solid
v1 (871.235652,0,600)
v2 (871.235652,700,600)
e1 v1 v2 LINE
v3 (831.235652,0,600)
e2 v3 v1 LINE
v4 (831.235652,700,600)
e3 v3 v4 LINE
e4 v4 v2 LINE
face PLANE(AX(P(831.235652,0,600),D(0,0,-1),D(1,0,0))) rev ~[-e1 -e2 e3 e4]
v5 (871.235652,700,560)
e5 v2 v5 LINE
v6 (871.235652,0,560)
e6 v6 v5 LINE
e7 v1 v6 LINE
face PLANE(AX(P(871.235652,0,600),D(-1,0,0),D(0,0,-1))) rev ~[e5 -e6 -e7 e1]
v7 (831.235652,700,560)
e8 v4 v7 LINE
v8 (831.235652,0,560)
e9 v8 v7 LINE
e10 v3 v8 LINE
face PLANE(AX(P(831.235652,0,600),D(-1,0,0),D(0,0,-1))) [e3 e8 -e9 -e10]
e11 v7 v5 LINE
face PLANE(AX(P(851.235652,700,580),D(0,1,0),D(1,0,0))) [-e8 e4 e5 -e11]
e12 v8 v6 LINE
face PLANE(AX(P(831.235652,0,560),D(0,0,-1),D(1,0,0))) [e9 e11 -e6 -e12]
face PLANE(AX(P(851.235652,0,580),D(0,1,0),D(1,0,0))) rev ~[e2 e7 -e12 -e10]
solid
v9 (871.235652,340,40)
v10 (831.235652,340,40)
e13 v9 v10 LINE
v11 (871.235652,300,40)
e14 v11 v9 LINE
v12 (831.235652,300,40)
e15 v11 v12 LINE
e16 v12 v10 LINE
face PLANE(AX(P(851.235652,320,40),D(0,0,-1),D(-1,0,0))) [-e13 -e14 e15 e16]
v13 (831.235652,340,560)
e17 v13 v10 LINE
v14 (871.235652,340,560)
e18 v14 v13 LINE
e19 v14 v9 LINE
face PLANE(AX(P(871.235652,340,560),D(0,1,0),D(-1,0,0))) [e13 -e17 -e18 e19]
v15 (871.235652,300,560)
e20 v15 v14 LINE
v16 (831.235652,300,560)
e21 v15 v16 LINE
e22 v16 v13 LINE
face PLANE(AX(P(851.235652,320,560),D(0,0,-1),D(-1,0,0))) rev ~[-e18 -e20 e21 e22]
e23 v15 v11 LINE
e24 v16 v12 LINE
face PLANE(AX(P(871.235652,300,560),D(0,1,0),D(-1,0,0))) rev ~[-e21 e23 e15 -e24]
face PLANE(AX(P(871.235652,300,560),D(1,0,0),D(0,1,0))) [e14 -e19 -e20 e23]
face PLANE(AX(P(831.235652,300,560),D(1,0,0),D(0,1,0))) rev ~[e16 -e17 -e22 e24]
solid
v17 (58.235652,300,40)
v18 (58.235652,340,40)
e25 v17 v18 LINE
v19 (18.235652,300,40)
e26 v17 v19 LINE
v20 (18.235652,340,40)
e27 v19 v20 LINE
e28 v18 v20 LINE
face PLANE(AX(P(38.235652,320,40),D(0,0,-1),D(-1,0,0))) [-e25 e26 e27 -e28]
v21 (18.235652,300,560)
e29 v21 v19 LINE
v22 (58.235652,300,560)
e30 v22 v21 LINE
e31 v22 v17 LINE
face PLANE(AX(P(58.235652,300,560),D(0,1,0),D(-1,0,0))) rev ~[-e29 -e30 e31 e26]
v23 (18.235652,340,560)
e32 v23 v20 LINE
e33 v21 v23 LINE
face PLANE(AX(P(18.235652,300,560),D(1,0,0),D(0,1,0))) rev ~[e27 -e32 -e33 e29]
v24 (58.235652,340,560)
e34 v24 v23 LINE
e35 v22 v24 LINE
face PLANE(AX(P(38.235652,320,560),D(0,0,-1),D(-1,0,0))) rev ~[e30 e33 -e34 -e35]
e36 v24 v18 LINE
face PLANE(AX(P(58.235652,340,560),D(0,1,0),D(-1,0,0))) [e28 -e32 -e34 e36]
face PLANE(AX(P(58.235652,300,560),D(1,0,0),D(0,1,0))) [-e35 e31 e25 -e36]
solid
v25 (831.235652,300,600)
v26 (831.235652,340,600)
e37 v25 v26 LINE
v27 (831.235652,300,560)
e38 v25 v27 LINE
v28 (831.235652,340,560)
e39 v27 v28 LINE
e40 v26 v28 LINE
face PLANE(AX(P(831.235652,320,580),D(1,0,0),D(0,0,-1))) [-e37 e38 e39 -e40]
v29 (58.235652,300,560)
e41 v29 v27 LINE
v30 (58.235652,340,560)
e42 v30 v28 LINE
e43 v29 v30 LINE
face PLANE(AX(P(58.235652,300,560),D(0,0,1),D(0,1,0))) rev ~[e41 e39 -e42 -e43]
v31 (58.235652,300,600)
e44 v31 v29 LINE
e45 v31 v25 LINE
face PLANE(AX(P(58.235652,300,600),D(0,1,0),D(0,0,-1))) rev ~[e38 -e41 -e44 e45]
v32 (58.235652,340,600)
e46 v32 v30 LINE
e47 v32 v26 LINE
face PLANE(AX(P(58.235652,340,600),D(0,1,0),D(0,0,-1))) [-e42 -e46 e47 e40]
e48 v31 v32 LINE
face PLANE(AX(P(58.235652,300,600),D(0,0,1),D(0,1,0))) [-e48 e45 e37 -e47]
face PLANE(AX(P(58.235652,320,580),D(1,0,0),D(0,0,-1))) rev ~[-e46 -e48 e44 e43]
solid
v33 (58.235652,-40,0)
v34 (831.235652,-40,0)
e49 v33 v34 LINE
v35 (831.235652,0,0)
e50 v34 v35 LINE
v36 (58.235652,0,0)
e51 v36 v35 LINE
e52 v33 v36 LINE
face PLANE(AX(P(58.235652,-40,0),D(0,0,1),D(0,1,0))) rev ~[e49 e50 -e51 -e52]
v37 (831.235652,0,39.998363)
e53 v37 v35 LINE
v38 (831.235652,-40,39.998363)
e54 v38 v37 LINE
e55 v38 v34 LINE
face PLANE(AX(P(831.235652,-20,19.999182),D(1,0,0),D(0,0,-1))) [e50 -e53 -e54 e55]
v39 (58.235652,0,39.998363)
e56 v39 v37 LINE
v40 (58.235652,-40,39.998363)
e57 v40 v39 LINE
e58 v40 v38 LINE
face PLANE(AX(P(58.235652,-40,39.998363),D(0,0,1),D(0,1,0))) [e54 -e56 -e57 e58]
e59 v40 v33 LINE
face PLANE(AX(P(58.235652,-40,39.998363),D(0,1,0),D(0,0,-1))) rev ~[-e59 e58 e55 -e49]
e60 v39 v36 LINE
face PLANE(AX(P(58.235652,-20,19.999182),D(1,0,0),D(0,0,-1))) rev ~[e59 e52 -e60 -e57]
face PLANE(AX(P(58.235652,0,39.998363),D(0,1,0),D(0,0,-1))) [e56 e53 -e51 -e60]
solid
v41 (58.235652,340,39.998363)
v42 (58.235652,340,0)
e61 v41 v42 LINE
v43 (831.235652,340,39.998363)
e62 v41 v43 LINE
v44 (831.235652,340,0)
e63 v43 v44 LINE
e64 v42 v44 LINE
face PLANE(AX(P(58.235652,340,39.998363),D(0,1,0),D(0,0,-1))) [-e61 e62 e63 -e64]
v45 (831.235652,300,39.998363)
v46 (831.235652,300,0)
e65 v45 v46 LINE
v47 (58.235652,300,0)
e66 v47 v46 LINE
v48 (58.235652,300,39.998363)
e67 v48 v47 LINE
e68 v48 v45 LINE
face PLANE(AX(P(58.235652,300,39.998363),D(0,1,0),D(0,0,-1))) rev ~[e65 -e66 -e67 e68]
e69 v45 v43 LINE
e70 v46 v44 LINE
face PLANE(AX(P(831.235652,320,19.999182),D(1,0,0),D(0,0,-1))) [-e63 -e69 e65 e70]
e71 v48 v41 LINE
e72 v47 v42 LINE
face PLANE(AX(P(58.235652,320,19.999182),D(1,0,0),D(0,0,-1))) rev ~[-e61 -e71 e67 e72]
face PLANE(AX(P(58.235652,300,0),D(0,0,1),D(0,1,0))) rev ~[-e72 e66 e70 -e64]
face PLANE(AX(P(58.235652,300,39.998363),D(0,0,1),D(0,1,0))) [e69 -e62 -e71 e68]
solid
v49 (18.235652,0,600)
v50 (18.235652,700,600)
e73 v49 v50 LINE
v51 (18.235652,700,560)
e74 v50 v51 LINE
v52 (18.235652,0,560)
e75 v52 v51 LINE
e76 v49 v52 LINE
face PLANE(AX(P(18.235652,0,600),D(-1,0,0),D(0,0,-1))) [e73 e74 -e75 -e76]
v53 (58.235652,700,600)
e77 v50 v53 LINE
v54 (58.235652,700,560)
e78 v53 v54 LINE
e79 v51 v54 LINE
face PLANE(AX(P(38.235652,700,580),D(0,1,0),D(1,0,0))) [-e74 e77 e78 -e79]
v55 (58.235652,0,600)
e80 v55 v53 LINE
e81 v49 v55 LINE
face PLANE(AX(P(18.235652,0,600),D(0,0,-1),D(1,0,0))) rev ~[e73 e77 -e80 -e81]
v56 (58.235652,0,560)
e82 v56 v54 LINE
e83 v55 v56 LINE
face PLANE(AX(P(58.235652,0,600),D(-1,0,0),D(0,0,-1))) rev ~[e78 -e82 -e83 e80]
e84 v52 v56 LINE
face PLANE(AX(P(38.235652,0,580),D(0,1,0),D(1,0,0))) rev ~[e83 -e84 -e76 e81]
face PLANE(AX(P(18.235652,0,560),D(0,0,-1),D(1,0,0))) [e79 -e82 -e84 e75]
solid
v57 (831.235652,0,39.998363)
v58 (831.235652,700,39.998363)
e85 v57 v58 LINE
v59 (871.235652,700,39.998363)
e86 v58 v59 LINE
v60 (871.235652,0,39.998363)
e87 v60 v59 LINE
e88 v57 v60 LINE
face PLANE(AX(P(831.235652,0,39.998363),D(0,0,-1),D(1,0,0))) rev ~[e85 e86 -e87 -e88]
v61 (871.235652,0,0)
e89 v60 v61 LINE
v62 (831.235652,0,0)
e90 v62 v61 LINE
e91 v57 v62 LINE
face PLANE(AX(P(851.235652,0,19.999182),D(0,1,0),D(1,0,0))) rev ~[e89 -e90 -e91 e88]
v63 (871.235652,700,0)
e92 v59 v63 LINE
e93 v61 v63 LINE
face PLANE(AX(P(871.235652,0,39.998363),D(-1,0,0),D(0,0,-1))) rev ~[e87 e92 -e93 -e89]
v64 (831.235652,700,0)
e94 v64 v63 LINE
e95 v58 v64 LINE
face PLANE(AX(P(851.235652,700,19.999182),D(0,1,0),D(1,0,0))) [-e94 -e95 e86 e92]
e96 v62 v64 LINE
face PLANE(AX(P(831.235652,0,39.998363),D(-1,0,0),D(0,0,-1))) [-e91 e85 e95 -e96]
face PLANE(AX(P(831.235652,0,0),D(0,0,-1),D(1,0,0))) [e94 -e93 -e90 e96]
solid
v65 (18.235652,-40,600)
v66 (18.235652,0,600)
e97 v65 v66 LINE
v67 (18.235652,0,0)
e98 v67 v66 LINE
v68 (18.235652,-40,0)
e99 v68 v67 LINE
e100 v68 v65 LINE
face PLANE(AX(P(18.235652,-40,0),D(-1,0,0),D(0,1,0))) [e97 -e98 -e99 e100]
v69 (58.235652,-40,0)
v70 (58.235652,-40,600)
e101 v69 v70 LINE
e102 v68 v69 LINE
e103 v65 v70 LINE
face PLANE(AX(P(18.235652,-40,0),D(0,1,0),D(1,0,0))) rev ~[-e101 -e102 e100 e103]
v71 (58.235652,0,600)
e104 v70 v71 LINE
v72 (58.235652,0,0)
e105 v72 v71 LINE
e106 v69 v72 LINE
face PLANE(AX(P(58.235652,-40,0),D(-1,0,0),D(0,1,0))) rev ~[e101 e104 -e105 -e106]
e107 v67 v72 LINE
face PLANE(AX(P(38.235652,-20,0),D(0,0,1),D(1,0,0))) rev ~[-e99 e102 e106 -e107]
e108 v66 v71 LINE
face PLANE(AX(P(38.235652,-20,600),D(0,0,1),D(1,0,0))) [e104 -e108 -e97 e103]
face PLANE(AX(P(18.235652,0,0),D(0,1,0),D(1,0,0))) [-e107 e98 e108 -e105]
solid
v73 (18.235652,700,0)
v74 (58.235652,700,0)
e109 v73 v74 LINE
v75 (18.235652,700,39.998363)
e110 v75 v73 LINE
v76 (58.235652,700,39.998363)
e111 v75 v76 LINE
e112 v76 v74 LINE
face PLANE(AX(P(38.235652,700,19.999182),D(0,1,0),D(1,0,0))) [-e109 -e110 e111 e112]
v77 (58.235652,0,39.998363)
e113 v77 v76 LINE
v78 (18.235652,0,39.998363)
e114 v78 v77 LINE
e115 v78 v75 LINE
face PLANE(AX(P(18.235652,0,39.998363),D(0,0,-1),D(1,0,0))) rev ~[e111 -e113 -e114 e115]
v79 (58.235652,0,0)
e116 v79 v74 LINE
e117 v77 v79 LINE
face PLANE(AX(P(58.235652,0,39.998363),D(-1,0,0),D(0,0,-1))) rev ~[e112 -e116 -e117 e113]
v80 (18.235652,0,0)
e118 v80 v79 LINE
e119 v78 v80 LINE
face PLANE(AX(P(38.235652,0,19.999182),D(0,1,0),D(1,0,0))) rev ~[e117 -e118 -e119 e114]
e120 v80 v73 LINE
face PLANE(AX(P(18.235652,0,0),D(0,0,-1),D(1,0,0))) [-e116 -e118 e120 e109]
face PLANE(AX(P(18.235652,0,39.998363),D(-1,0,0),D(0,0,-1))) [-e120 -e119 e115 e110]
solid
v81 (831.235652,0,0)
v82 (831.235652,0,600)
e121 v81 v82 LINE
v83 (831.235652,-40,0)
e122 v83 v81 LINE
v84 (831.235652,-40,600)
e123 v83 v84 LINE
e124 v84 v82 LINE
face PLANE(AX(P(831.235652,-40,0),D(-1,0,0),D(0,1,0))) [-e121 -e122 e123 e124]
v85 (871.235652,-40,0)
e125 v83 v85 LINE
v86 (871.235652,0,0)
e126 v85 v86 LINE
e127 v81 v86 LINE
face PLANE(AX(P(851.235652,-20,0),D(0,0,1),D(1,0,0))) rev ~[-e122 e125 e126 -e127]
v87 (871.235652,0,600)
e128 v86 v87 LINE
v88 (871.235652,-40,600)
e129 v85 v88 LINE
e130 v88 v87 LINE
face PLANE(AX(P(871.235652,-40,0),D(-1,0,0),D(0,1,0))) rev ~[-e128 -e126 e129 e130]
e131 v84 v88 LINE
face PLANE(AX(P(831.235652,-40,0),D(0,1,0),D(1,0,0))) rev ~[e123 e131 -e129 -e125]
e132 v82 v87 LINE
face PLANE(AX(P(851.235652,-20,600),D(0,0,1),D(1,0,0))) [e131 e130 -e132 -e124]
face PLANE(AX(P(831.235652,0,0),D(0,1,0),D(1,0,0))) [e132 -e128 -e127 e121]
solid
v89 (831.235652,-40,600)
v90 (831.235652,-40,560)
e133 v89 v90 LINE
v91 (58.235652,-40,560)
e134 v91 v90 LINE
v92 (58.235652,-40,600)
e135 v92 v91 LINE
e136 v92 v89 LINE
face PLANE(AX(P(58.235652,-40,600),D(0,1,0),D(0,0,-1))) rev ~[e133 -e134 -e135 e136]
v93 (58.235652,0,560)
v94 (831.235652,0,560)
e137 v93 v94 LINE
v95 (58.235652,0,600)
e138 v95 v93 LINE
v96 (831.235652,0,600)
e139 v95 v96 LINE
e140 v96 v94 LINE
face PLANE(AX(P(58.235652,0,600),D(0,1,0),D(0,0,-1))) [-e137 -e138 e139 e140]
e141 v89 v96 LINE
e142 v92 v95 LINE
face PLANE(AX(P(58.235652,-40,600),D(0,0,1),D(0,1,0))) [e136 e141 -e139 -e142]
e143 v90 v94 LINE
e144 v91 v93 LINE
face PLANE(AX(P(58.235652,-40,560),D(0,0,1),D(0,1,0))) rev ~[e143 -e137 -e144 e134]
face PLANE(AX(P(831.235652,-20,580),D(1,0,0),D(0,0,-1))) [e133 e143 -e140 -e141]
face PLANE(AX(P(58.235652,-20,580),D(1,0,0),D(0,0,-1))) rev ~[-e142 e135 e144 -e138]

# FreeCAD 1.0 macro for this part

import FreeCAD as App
import Part
import Sketcher
Q = App.Units.Quantity


def add_polygon(sketch, points):
    """Adds a closed chain of lines whose ends are joined by coincident constraints."""
    first, n = sketch.GeometryCount, len(points)
    for a, b in zip(points, points[1:] + points[:1]):
        sketch.addGeometry(Part.LineSegment(App.Vector(*a, 0), App.Vector(*b, 0)), False)
    for i in range(n):
        sketch.addConstraint(Sketcher.Constraint("Coincident", first + i, 2, first + (i + 1) % n, 1))

doc = App.newDocument("Part")
body = doc.addObject("PartDesign::Body", "Body")

# Sketch on XY plane
sketch1 = body.newObject("Sketcher::SketchObject", "Sketch")
sketch1.AttachmentSupport = (doc.getObject("XY_Plane"), [""])
sketch1.MapMode = "FlatFace"
add_polygon(sketch1, [(18, 0), (18, -40), (58, -40), (58, 0)])  # lines 0-3
sketch1.addConstraint([
    Sketcher.Constraint("Vertical", 0),
    Sketcher.Constraint("Horizontal", 1),
    Sketcher.Constraint("Vertical", 2),
    Sketcher.Constraint("Horizontal", 3),
    Sketcher.Constraint("PointOnObject", 2, 2, -1),
    Sketcher.Constraint("Equal", 3, 0),
    Sketcher.Constraint("DistanceX", 1, 1, 1, 2, Q("40 mm")),
    Sketcher.Constraint("DistanceX", -1, 1, 0, 2, Q("18.235652 mm")),
])
pad1 = body.newObject("PartDesign::Pad", "Pad")
pad1.Profile = sketch1
pad1.Length = 600
body2 = doc.addObject("PartDesign::Body", "Body001")

# Sketch on XY plane
sketch2 = body2.newObject("Sketcher::SketchObject", "Sketch001")
sketch2.AttachmentSupport = (doc.getObject("XY_Plane001"), [""])
sketch2.MapMode = "FlatFace"
add_polygon(sketch2, [(831, 0), (831, -40), (871, -40), (871, 0)])  # lines 0-3
sketch2.addConstraint([
    Sketcher.Constraint("Vertical", 0),
    Sketcher.Constraint("Horizontal", 1),
    Sketcher.Constraint("Vertical", 2),
    Sketcher.Constraint("Horizontal", 3),
    Sketcher.Constraint("PointOnObject", 2, 2, -1),
    Sketcher.Constraint("Equal", 3, 0),
    Sketcher.Constraint("DistanceX", 1, 1, 1, 2, Q("40 mm")),
    Sketcher.Constraint("DistanceX", -1, 1, 0, 2, Q("831.235652 mm")),
])
pad2 = body2.newObject("PartDesign::Pad", "Pad001")
pad2.Profile = sketch2
pad2.Length = 600
body3 = doc.addObject("PartDesign::Body", "Body002")

# Sketch on YZ plane
sketch3 = body3.newObject("Sketcher::SketchObject", "Sketch002")
sketch3.AttachmentSupport = (doc.getObject("YZ_Plane002"), [""])
sketch3.MapMode = "FlatFace"
sketch3.AttachmentOffset = App.Placement(App.Vector(0, 0, 58.235652), App.Rotation())
add_polygon(sketch3, [(0, 600), (-40, 600), (-40, 560), (0, 560)])  # lines 0-3
sketch3.addConstraint([
    Sketcher.Constraint("Horizontal", 0),
    Sketcher.Constraint("Vertical", 1),
    Sketcher.Constraint("Horizontal", 2),
    Sketcher.Constraint("Vertical", 3),
    Sketcher.Constraint("PointOnObject", 2, 2, -2),
    Sketcher.Constraint("Equal", 2, 1),
    Sketcher.Constraint("DistanceX", 0, 2, 0, 1, Q("40 mm")),
    Sketcher.Constraint("DistanceY", -1, 1, 0, 2, Q("600 mm")),
])
pad3 = body3.newObject("PartDesign::Pad", "Pad002")
pad3.Profile = sketch3
pad3.Length = 773
body4 = doc.addObject("PartDesign::Body", "Body003")

# Sketch on YZ plane
sketch4 = body4.newObject("Sketcher::SketchObject", "Sketch003")
sketch4.AttachmentSupport = (doc.getObject("YZ_Plane003"), [""])
sketch4.MapMode = "FlatFace"
sketch4.AttachmentOffset = App.Placement(App.Vector(0, 0, 58.235652), App.Rotation())
add_polygon(sketch4, [(0, 40), (-40, 40), (-40, 0), (0, 0)])  # lines 0-3
sketch4.addConstraint([
    Sketcher.Constraint("Horizontal", 0),
    Sketcher.Constraint("Vertical", 1),
    Sketcher.Constraint("Horizontal", 2),
    Sketcher.Constraint("Vertical", 3),
    Sketcher.Constraint("Coincident", 2, 2, -1, 1),
    Sketcher.Constraint("DistanceX", 0, 2, 0, 1, Q("40 mm")),
    Sketcher.Constraint("DistanceY", 1, 2, 1, 1, Q("39.998363 mm")),
])
pad4 = body4.newObject("PartDesign::Pad", "Pad003")
pad4.Profile = sketch4
pad4.Length = 773
body5 = doc.addObject("PartDesign::Body", "Body004")

# Sketch on XZ plane
sketch5 = body5.newObject("Sketcher::SketchObject", "Sketch004")
sketch5.AttachmentSupport = (doc.getObject("XZ_Plane004"), [""])
sketch5.MapMode = "FlatFace"
add_polygon(sketch5, [(18, 0), (18, 40), (58, 40), (58, 0)])  # lines 0-3
sketch5.addConstraint([
    Sketcher.Constraint("Vertical", 0),
    Sketcher.Constraint("Horizontal", 1),
    Sketcher.Constraint("Vertical", 2),
    Sketcher.Constraint("Horizontal", 3),
    Sketcher.Constraint("PointOnObject", 2, 2, -1),
    Sketcher.Constraint("DistanceX", 1, 1, 1, 2, Q("40 mm")),
    Sketcher.Constraint("DistanceY", 0, 1, 0, 2, Q("39.998363 mm")),
    Sketcher.Constraint("DistanceX", -1, 1, 0, 2, Q("18.235652 mm")),
])
pad5 = body5.newObject("PartDesign::Pad", "Pad004")
pad5.Profile = sketch5
pad5.Length = 700
pad5.Reversed = True
body6 = doc.addObject("PartDesign::Body", "Body005")

# Sketch on XZ plane
sketch6 = body6.newObject("Sketcher::SketchObject", "Sketch005")
sketch6.AttachmentSupport = (doc.getObject("XZ_Plane005"), [""])
sketch6.MapMode = "FlatFace"
add_polygon(sketch6, [(831, 0), (831, 40), (871, 40), (871, 0)])  # lines 0-3
sketch6.addConstraint([
    Sketcher.Constraint("Vertical", 0),
    Sketcher.Constraint("Horizontal", 1),
    Sketcher.Constraint("Vertical", 2),
    Sketcher.Constraint("Horizontal", 3),
    Sketcher.Constraint("PointOnObject", 2, 2, -1),
    Sketcher.Constraint("DistanceX", 1, 1, 1, 2, Q("40 mm")),
    Sketcher.Constraint("DistanceY", 0, 1, 0, 2, Q("39.998363 mm")),
    Sketcher.Constraint("DistanceX", -1, 1, 0, 2, Q("831.235652 mm")),
])
pad6 = body6.newObject("PartDesign::Pad", "Pad005")
pad6.Profile = sketch6
pad6.Length = 700
pad6.Reversed = True
body7 = doc.addObject("PartDesign::Body", "Body006")

# Sketch on XZ plane
sketch7 = body7.newObject("Sketcher::SketchObject", "Sketch006")
sketch7.AttachmentSupport = (doc.getObject("XZ_Plane006"), [""])
sketch7.MapMode = "FlatFace"
add_polygon(sketch7, [(18, 560), (18, 600), (58, 600), (58, 560)])  # lines 0-3
sketch7.addConstraint([
    Sketcher.Constraint("Vertical", 0),
    Sketcher.Constraint("Horizontal", 1),
    Sketcher.Constraint("Vertical", 2),
    Sketcher.Constraint("Horizontal", 3),
    Sketcher.Constraint("Equal", 3, 0),
    Sketcher.Constraint("DistanceX", 1, 1, 1, 2, Q("40 mm")),
    Sketcher.Constraint("DistanceY", -1, 1, 0, 2, Q("600 mm")),
    Sketcher.Constraint("DistanceX", -1, 1, 0, 2, Q("18.235652 mm")),
])
pad7 = body7.newObject("PartDesign::Pad", "Pad006")
pad7.Profile = sketch7
pad7.Length = 700
pad7.Reversed = True
body8 = doc.addObject("PartDesign::Body", "Body007")

# Sketch on XZ plane
sketch8 = body8.newObject("Sketcher::SketchObject", "Sketch007")
sketch8.AttachmentSupport = (doc.getObject("XZ_Plane007"), [""])
sketch8.MapMode = "FlatFace"
add_polygon(sketch8, [(831, 560), (831, 600), (871, 600), (871, 560)])  # lines 0-3
sketch8.addConstraint([
    Sketcher.Constraint("Vertical", 0),
    Sketcher.Constraint("Horizontal", 1),
    Sketcher.Constraint("Vertical", 2),
    Sketcher.Constraint("Horizontal", 3),
    Sketcher.Constraint("Equal", 3, 0),
    Sketcher.Constraint("DistanceX", 1, 1, 1, 2, Q("40 mm")),
    Sketcher.Constraint("DistanceY", -1, 1, 0, 2, Q("600 mm")),
    Sketcher.Constraint("DistanceX", -1, 1, 0, 2, Q("831.235652 mm")),
])
pad8 = body8.newObject("PartDesign::Pad", "Pad007")
pad8.Profile = sketch8
pad8.Length = 700
pad8.Reversed = True
body9 = doc.addObject("PartDesign::Body", "Body008")

# Sketch on YZ plane
sketch9 = body9.newObject("Sketcher::SketchObject", "Sketch008")
sketch9.AttachmentSupport = (doc.getObject("YZ_Plane008"), [""])
sketch9.MapMode = "FlatFace"
sketch9.AttachmentOffset = App.Placement(App.Vector(0, 0, 58.235652), App.Rotation())
add_polygon(sketch9, [(340, 600), (300, 600), (300, 560), (340, 560)])  # lines 0-3
sketch9.addConstraint([
    Sketcher.Constraint("Horizontal", 0),
    Sketcher.Constraint("Vertical", 1),
    Sketcher.Constraint("Horizontal", 2),
    Sketcher.Constraint("Vertical", 3),
    Sketcher.Constraint("Equal", 2, 1),
    Sketcher.Constraint("DistanceX", 0, 2, 0, 1, Q("40 mm")),
    Sketcher.Constraint("DistanceX", -1, 1, 0, 2, Q("300 mm")),
    Sketcher.Constraint("DistanceY", -1, 1, 0, 2, Q("600 mm")),
])
pad9 = body9.newObject("PartDesign::Pad", "Pad008")
pad9.Profile = sketch9
pad9.Length = 773
body10 = doc.addObject("PartDesign::Body", "Body009")

# Sketch on YZ plane
sketch10 = body10.newObject("Sketcher::SketchObject", "Sketch009")
sketch10.AttachmentSupport = (doc.getObject("YZ_Plane009"), [""])
sketch10.MapMode = "FlatFace"
sketch10.AttachmentOffset = App.Placement(App.Vector(0, 0, 58.235652), App.Rotation())
add_polygon(sketch10, [(340, 40), (300, 40), (300, 0), (340, 0)])  # lines 0-3
sketch10.addConstraint([
    Sketcher.Constraint("Horizontal", 0),
    Sketcher.Constraint("Vertical", 1),
    Sketcher.Constraint("Horizontal", 2),
    Sketcher.Constraint("Vertical", 3),
    Sketcher.Constraint("PointOnObject", 1, 2, -1),
    Sketcher.Constraint("DistanceX", 0, 2, 0, 1, Q("40 mm")),
    Sketcher.Constraint("DistanceX", -1, 1, 0, 2, Q("300 mm")),
    Sketcher.Constraint("DistanceY", 1, 2, 1, 1, Q("39.998363 mm")),
])
pad10 = body10.newObject("PartDesign::Pad", "Pad009")
pad10.Profile = sketch10
pad10.Length = 773
body11 = doc.addObject("PartDesign::Body", "Body010")

# Sketch on XY plane
sketch11 = body11.newObject("Sketcher::SketchObject", "Sketch010")
sketch11.AttachmentSupport = (doc.getObject("XY_Plane010"), [""])
sketch11.MapMode = "FlatFace"
sketch11.AttachmentOffset = App.Placement(App.Vector(0, 0, 560), App.Rotation())
add_polygon(sketch11, [(871, 340), (871, 300), (831, 300), (831, 340)])  # lines 0-3
sketch11.addConstraint([
    Sketcher.Constraint("Vertical", 0),
    Sketcher.Constraint("Horizontal", 1),
    Sketcher.Constraint("Vertical", 2),
    Sketcher.Constraint("Horizontal", 3),
    Sketcher.Constraint("Equal", 3, 0),
    Sketcher.Constraint("DistanceX", 1, 2, 1, 1, Q("40 mm")),
    Sketcher.Constraint("DistanceY", -1, 1, 0, 2, Q("300 mm")),
    Sketcher.Constraint("DistanceX", -1, 1, 0, 2, Q("871.235652 mm")),
])
pad11 = body11.newObject("PartDesign::Pad", "Pad010")
pad11.Profile = sketch11
pad11.Length = 520
pad11.Reversed = True
body12 = doc.addObject("PartDesign::Body", "Body011")

# Sketch on XY plane
sketch12 = body12.newObject("Sketcher::SketchObject", "Sketch011")
sketch12.AttachmentSupport = (doc.getObject("XY_Plane011"), [""])
sketch12.MapMode = "FlatFace"
sketch12.AttachmentOffset = App.Placement(App.Vector(0, 0, 560), App.Rotation())
add_polygon(sketch12, [(58, 340), (58, 300), (18, 300), (18, 340)])  # lines 0-3
sketch12.addConstraint([
    Sketcher.Constraint("Vertical", 0),
    Sketcher.Constraint("Horizontal", 1),
    Sketcher.Constraint("Vertical", 2),
    Sketcher.Constraint("Horizontal", 3),
    Sketcher.Constraint("Equal", 3, 0),
    Sketcher.Constraint("DistanceX", 1, 2, 1, 1, Q("40 mm")),
    Sketcher.Constraint("DistanceY", -1, 1, 0, 2, Q("300 mm")),
    Sketcher.Constraint("DistanceX", -1, 1, 0, 2, Q("58.235652 mm")),
])
pad12 = body12.newObject("PartDesign::Pad", "Pad011")
pad12.Profile = sketch12
pad12.Length = 520
pad12.Reversed = True

doc.recompute()
